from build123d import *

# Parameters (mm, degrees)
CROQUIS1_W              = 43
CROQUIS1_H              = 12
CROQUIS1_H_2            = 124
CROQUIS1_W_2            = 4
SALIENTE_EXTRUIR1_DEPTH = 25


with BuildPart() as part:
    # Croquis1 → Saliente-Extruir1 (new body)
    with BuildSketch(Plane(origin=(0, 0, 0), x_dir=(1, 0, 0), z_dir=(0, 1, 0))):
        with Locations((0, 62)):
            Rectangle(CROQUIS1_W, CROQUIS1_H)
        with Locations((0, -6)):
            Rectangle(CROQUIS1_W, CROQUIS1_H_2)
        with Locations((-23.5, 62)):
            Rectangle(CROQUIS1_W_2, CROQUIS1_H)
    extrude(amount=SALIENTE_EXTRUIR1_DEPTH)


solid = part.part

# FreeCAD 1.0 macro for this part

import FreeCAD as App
import Part
import Sketcher


def add_polygon(sketch, points):
    """Adds a closed chain of lines whose ends are joined by coincident constraints."""
    first, n = sketch.GeometryCount, len(points)
    for a, b in zip(points, points[1:] + points[:1]):
        sketch.addGeometry(Part.LineSegment(App.Vector(*a, 0), App.Vector(*b, 0)), False)
    for i in range(n):
        sketch.addConstraint(Sketcher.Constraint("Coincident", first + i, 2, first + (i + 1) % n, 1))

doc = App.newDocument("Part")
params = doc.addObject("Spreadsheet::Sheet", "Params")
for row, (alias, value) in enumerate([
    ("sketch1_width", "43 mm"),
    ("sketch1_width2", "47 mm"),
    ("sketch1_height", "124 mm"),
    ("sketch1_height2", "136 mm"),
    ("pad1_length", "25 mm"),
], start=1):
    params.set(f"A{row}", alias)
    params.set(f"B{row}", "=" + value)
    params.setAlias(f"B{row}", alias)

body = doc.addObject("PartDesign::Body", "Body")

sketch1 = body.newObject("Sketcher::SketchObject", "Sketch")
sketch1.AttachmentSupport = (doc.getObject("XZ_Plane"), [""])
sketch1.MapMode = "FlatFace"
add_polygon(sketch1, [(-21.5, -56), (-21.5, 68), (21.5, 68), (21.5, -68), (-25.5, -68), (-25.5, -56)])
sketch1.addConstraint(Sketcher.Constraint("Vertical", 0))
sketch1.addConstraint(Sketcher.Constraint("Horizontal", 1))
sketch1.addConstraint(Sketcher.Constraint("Vertical", 2))
sketch1.addConstraint(Sketcher.Constraint("Horizontal", 3))
sketch1.addConstraint(Sketcher.Constraint("Vertical", 4))
sketch1.addConstraint(Sketcher.Constraint("Horizontal", 5))
sketch1.addConstraint(Sketcher.Constraint("Symmetric", 0, 2, 2, 2, -1, 1))
sketch1.addConstraint(Sketcher.Constraint("DistanceX", 1, 1, 1, 2, 43.0))
sketch1.addConstraint(Sketcher.Constraint("DistanceX", 3, 2, 3, 1, 47.0))
sketch1.addConstraint(Sketcher.Constraint("DistanceY", 0, 1, 0, 2, 124.0))
sketch1.addConstraint(Sketcher.Constraint("DistanceY", 2, 2, 2, 1, 136.0))
sketch1.setExpression("Constraints[13]", "Params.sketch1_width")
sketch1.setExpression("Constraints[14]", "Params.sketch1_width2")
sketch1.setExpression("Constraints[15]", "Params.sketch1_height")
sketch1.setExpression("Constraints[16]", "Params.sketch1_height2")
pad1 = body.newObject("PartDesign::Pad", "Pad")
pad1.Profile = sketch1
pad1.setExpression("Length", "Params.pad1_length")
pad1.Reversed = True

doc.recompute()
